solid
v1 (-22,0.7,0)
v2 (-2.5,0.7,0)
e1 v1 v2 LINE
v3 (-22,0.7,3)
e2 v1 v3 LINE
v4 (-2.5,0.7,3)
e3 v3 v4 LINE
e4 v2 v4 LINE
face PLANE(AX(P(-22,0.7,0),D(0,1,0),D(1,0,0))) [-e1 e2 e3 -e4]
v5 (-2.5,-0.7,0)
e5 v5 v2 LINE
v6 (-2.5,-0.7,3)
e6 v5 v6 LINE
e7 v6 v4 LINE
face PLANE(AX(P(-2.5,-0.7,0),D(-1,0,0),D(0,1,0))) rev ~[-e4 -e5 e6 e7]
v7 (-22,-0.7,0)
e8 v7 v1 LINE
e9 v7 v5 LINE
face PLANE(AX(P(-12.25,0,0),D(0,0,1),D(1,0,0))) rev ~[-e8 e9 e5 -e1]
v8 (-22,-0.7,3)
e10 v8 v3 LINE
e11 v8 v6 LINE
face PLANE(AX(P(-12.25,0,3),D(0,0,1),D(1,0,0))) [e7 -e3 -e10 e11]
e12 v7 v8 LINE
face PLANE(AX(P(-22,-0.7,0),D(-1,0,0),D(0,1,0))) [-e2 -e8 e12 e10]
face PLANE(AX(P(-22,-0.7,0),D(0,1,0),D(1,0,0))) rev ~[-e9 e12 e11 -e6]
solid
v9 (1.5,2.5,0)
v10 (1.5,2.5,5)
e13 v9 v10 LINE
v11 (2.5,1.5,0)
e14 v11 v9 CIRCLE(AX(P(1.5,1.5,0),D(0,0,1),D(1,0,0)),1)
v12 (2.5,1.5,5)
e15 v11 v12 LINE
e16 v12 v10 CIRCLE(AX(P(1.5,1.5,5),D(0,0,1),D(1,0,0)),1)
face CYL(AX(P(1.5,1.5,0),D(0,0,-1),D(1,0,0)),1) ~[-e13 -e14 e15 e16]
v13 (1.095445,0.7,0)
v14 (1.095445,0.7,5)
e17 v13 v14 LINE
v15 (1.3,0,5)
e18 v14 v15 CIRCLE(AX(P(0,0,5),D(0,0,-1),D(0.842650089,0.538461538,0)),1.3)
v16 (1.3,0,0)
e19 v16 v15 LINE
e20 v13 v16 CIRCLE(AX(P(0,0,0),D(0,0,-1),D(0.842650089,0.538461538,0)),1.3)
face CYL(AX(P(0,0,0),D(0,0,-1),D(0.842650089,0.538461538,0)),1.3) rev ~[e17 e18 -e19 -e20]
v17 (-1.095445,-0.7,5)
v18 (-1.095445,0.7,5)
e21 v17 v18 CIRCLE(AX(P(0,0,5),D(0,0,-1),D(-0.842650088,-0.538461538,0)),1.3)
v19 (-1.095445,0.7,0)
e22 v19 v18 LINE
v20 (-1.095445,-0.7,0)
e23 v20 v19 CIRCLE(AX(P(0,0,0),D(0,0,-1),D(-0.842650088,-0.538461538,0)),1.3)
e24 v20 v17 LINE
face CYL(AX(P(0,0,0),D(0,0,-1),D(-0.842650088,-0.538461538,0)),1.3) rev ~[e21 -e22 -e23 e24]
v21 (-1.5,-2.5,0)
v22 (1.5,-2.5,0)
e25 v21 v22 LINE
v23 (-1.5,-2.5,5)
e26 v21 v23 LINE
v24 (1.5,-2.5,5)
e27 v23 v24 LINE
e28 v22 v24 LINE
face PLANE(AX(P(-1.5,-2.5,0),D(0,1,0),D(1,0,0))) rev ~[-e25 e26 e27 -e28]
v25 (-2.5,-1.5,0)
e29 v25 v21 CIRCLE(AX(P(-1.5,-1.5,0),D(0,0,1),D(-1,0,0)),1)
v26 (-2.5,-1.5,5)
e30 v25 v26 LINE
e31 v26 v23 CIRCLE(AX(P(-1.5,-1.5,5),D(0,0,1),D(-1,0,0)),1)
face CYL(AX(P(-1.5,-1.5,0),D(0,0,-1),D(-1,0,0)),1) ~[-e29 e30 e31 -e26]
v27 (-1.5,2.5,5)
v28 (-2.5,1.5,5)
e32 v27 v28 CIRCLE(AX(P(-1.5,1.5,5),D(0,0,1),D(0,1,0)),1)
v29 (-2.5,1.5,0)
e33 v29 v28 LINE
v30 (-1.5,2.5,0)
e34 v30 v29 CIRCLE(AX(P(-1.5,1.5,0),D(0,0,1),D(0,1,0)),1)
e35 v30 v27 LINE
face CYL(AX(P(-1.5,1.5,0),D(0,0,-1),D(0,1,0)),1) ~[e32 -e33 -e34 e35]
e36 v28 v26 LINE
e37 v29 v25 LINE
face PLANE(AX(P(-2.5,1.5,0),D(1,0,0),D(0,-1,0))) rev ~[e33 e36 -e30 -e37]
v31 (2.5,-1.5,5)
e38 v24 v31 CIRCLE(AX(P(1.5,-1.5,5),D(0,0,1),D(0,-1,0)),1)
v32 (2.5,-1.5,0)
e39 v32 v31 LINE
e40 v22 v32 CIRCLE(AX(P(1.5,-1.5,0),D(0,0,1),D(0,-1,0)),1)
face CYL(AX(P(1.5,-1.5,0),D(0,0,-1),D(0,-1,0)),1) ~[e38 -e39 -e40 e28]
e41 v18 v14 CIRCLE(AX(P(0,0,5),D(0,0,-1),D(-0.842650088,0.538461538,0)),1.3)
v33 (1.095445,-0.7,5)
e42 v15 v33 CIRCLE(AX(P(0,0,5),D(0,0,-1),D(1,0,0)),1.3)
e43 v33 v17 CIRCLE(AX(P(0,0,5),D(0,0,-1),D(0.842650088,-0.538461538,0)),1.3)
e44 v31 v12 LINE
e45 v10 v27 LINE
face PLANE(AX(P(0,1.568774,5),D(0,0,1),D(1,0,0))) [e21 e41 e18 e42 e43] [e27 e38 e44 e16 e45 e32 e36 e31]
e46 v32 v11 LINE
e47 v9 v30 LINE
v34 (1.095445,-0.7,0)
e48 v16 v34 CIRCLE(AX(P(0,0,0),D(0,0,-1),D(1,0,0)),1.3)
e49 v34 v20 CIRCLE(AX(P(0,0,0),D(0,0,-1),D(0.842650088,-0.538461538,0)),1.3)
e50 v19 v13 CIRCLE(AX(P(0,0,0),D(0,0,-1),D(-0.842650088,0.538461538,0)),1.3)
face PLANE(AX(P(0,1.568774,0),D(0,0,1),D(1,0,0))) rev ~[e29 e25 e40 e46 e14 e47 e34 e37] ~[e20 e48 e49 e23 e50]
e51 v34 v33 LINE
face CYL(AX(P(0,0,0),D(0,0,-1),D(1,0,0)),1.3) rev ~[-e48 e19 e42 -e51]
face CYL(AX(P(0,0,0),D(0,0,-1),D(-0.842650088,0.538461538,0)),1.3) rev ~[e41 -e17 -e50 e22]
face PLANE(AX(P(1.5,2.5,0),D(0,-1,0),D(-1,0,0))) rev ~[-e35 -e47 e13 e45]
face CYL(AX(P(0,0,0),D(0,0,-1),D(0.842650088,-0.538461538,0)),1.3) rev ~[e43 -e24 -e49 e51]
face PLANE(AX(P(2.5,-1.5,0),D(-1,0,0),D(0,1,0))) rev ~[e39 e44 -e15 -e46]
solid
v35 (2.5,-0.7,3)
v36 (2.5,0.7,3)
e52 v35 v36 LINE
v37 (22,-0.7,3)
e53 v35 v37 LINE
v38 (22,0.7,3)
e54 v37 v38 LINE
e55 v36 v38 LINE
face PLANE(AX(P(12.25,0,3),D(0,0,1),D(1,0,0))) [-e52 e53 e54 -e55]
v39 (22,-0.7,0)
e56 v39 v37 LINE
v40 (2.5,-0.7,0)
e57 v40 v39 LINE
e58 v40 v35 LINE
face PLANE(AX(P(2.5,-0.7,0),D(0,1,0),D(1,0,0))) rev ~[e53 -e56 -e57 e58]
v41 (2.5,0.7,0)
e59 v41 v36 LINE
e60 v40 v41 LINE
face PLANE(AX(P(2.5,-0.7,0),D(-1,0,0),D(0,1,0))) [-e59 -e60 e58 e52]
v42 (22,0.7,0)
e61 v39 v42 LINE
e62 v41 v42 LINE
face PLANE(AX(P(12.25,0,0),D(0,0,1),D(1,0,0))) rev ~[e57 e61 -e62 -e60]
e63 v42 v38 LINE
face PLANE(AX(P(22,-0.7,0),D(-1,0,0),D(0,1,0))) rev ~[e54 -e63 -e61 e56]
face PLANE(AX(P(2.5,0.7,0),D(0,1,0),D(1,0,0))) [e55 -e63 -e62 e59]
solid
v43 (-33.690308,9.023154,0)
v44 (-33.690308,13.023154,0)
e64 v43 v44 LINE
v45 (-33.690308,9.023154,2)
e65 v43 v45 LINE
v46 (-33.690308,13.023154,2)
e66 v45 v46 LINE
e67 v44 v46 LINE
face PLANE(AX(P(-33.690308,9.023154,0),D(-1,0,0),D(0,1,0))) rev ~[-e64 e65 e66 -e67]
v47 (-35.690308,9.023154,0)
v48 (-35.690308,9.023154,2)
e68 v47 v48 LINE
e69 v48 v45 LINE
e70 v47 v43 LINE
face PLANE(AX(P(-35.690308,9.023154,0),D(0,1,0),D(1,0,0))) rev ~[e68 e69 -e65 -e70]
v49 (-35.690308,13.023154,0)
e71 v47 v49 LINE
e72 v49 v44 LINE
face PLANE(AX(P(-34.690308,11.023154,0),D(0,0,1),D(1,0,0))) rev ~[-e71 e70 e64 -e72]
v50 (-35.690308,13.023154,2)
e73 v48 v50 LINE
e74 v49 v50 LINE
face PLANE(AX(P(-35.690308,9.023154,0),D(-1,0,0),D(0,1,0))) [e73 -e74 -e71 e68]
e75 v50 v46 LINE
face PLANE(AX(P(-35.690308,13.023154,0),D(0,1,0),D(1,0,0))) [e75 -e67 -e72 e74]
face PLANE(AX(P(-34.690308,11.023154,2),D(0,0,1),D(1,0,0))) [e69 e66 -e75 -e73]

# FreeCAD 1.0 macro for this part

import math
import FreeCAD as App
import Part
import Sketcher


def add_polygon(sketch, points):
    """Adds a closed chain of lines whose ends are joined by coincident constraints."""
    first, n = sketch.GeometryCount, len(points)
    for a, b in zip(points, points[1:] + points[:1]):
        sketch.addGeometry(Part.LineSegment(App.Vector(*a, 0), App.Vector(*b, 0)), False)
    for i in range(n):
        sketch.addConstraint(Sketcher.Constraint("Coincident", first + i, 2, first + (i + 1) % n, 1))

doc = App.newDocument("Part")
body = doc.addObject("PartDesign::Body", "Body")

sketch1 = body.newObject("Sketcher::SketchObject", "Sketch")
sketch1.AttachmentSupport = (doc.getObject("XY_Plane"), [""])
sketch1.MapMode = "FlatFace"
add_polygon(sketch1, [(-22, 0.7), (-22, -0.7), (-2.5, -0.7), (-2.5, 0.7)])
sketch1.addConstraint(Sketcher.Constraint("Vertical", 0))
sketch1.addConstraint(Sketcher.Constraint("Horizontal", 1))
sketch1.addConstraint(Sketcher.Constraint("Vertical", 2))
sketch1.addConstraint(Sketcher.Constraint("Horizontal", 3))
sketch1.addConstraint(Sketcher.Constraint("DistanceX", 1, 1, 1, 2, 19.5))
sketch1.addConstraint(Sketcher.Constraint("DistanceY", 0, 2, 0, 1, 1.4))
sketch1.addConstraint(Sketcher.Constraint("DistanceX", 0, 2, -1, 1, 22.0))
sketch1.addConstraint(Sketcher.Constraint("DistanceY", 0, 2, -1, 1, 0.7))
pad1 = body.newObject("PartDesign::Pad", "Pad")
pad1.Profile = sketch1
pad1.Length = 3
body2 = doc.addObject("PartDesign::Body", "Body001")

sketch2 = body2.newObject("Sketcher::SketchObject", "Sketch001")
sketch2.AttachmentSupport = (doc.getObject("XY_Plane001"), [""])
sketch2.MapMode = "FlatFace"
add_polygon(sketch2, [(2.5, 0.7), (2.5, -0.7), (22, -0.7), (22, 0.7)])
sketch2.addConstraint(Sketcher.Constraint("Vertical", 0))
sketch2.addConstraint(Sketcher.Constraint("Horizontal", 1))
sketch2.addConstraint(Sketcher.Constraint("Vertical", 2))
sketch2.addConstraint(Sketcher.Constraint("Horizontal", 3))
sketch2.addConstraint(Sketcher.Constraint("DistanceX", 1, 1, 1, 2, 19.5))
sketch2.addConstraint(Sketcher.Constraint("DistanceY", 0, 2, 0, 1, 1.4))
sketch2.addConstraint(Sketcher.Constraint("DistanceX", -1, 1, 1, 2, 22.0))
sketch2.addConstraint(Sketcher.Constraint("DistanceY", 0, 2, -1, 1, 0.7))
pad2 = body2.newObject("PartDesign::Pad", "Pad001")
pad2.Profile = sketch2
pad2.Length = 3
body3 = doc.addObject("PartDesign::Body", "Body002")

sketch3 = body3.newObject("Sketcher::SketchObject", "Sketch002")
sketch3.AttachmentSupport = (doc.getObject("XY_Plane002"), [""])
sketch3.MapMode = "FlatFace"
sketch3.addGeometry(Part.LineSegment(App.Vector(-2.5, 1.5, 0), App.Vector(-2.5, -1.5, 0)), False)
sketch3.addGeometry(Part.ArcOfCircle(Part.Circle(App.Vector(-1.5, -1.5, 0), App.Vector(0, 0, 1), 1), math.radians(180), math.radians(270)), False)
sketch3.addGeometry(Part.LineSegment(App.Vector(-1.5, -2.5, 0), App.Vector(1.5, -2.5, 0)), False)
sketch3.addGeometry(Part.ArcOfCircle(Part.Circle(App.Vector(1.5, -1.5, 0), App.Vector(0, 0, 1), 1), math.radians(-90), math.radians(0)), False)
sketch3.addGeometry(Part.LineSegment(App.Vector(2.5, -1.5, 0), App.Vector(2.5, 1.5, 0)), False)
sketch3.addGeometry(Part.ArcOfCircle(Part.Circle(App.Vector(1.5, 1.5, 0), App.Vector(0, 0, 1), 1), math.radians(0), math.radians(90)), False)
sketch3.addGeometry(Part.LineSegment(App.Vector(1.5, 2.5, 0), App.Vector(-1.5, 2.5, 0)), False)
sketch3.addGeometry(Part.ArcOfCircle(Part.Circle(App.Vector(-1.5, 1.5, 0), App.Vector(0, 0, 1), 1), math.radians(90), math.radians(180)), False)
sketch3.addGeometry(Part.ArcOfCircle(Part.Circle(App.Vector(0, 0, 0), App.Vector(0, 0, 1), 1.3), math.radians(147), math.radians(213)), False)
sketch3.addGeometry(Part.ArcOfCircle(Part.Circle(App.Vector(0, 0, 0), App.Vector(0, 0, 1), 1.3), math.radians(33), math.radians(147)), False)
sketch3.addGeometry(Part.ArcOfCircle(Part.Circle(App.Vector(0, 0, 0), App.Vector(0, 0, 1), 1.3), math.radians(0), math.radians(33)), False)
sketch3.addGeometry(Part.ArcOfCircle(Part.Circle(App.Vector(0, 0, 0), App.Vector(0, 0, 1), 1.3), math.radians(-33), math.radians(0)), False)
sketch3.addGeometry(Part.ArcOfCircle(Part.Circle(App.Vector(0, 0, 0), App.Vector(0, 0, 1), 1.3), math.radians(-147), math.radians(-33)), False)
sketch3.addConstraint(Sketcher.Constraint("Tangent", 0, 2, 1, 1))
sketch3.addConstraint(Sketcher.Constraint("Tangent", 1, 2, 2, 1))
sketch3.addConstraint(Sketcher.Constraint("Tangent", 2, 2, 3, 1))
sketch3.addConstraint(Sketcher.Constraint("Tangent", 3, 2, 4, 1))
sketch3.addConstraint(Sketcher.Constraint("Tangent", 4, 2, 5, 1))
sketch3.addConstraint(Sketcher.Constraint("Tangent", 5, 2, 6, 1))
sketch3.addConstraint(Sketcher.Constraint("Tangent", 6, 2, 7, 1))
sketch3.addConstraint(Sketcher.Constraint("Tangent", 7, 2, 0, 1))
sketch3.addConstraint(Sketcher.Constraint("Tangent", 8, 1, 9, 2))
sketch3.addConstraint(Sketcher.Constraint("Tangent", 9, 1, 10, 2))
sketch3.addConstraint(Sketcher.Constraint("Tangent", 10, 1, 11, 2))
sketch3.addConstraint(Sketcher.Constraint("Tangent", 11, 1, 12, 2))
sketch3.addConstraint(Sketcher.Constraint("Tangent", 12, 1, 8, 2))
sketch3.addConstraint(Sketcher.Constraint("Vertical", 0))
sketch3.addConstraint(Sketcher.Constraint("Horizontal", 2))
sketch3.addConstraint(Sketcher.Constraint("Vertical", 4))
sketch3.addConstraint(Sketcher.Constraint("Horizontal", 6))
sketch3.addConstraint(Sketcher.Constraint("Coincident", 8, 3, -1, 1))
sketch3.addConstraint(Sketcher.Constraint("Coincident", 10, 3, -1, 1))
sketch3.addConstraint(Sketcher.Constraint("Equal", 1, 3))
sketch3.addConstraint(Sketcher.Constraint("Equal", 3, 5))
sketch3.addConstraint(Sketcher.Constraint("Equal", 5, 7))
sketch3.addConstraint(Sketcher.Constraint("Symmetric", 1, 3, 5, 3, -1, 1))
sketch3.addConstraint(Sketcher.Constraint("PointOnObject", 10, 1, -1))
sketch3.addConstraint(Sketcher.Constraint("Horizontal", 8, 1, 9, 1))
sketch3.addConstraint(Sketcher.Constraint("Horizontal", 11, 1, 12, 1))
sketch3.addConstraint(Sketcher.Constraint("Vertical", 9, 1, 11, 1))
sketch3.addConstraint(Sketcher.Constraint("Equal", 6, 0))
sketch3.addConstraint(Sketcher.Constraint("Radius", 1, 1.0))
sketch3.addConstraint(Sketcher.Constraint("Radius", 8, 1.3))
sketch3.addConstraint(Sketcher.Constraint("DistanceX", 2, 1, 2, 2, 3.0))
sketch3.addConstraint(Sketcher.Constraint("DistanceY", -1, 1, 8, 1, 0.7))
pad3 = body3.newObject("PartDesign::Pad", "Pad002")
pad3.Profile = sketch3
pad3.Length = 5
body4 = doc.addObject("PartDesign::Body", "Body003")

sketch4 = body4.newObject("Sketcher::SketchObject", "Sketch003")
sketch4.AttachmentSupport = (doc.getObject("XY_Plane003"), [""])
sketch4.MapMode = "FlatFace"
add_polygon(sketch4, [(-35.7, 13), (-35.7, 9), (-33.7, 9), (-33.7, 13)])
sketch4.addConstraint(Sketcher.Constraint("Vertical", 0))
sketch4.addConstraint(Sketcher.Constraint("Horizontal", 1))
sketch4.addConstraint(Sketcher.Constraint("Vertical", 2))
sketch4.addConstraint(Sketcher.Constraint("Horizontal", 3))
sketch4.addConstraint(Sketcher.Constraint("DistanceX", 1, 1, 1, 2, 2.0))
sketch4.addConstraint(Sketcher.Constraint("DistanceY", 0, 2, 0, 1, 4.0))
sketch4.addConstraint(Sketcher.Constraint("DistanceX", 0, 2, -1, 1, 35.690308))
sketch4.addConstraint(Sketcher.Constraint("DistanceY", -1, 1, 0, 2, 9.023154))
pad4 = body4.newObject("PartDesign::Pad", "Pad003")
pad4.Profile = sketch4
pad4.Length = 2

doc.recompute()
